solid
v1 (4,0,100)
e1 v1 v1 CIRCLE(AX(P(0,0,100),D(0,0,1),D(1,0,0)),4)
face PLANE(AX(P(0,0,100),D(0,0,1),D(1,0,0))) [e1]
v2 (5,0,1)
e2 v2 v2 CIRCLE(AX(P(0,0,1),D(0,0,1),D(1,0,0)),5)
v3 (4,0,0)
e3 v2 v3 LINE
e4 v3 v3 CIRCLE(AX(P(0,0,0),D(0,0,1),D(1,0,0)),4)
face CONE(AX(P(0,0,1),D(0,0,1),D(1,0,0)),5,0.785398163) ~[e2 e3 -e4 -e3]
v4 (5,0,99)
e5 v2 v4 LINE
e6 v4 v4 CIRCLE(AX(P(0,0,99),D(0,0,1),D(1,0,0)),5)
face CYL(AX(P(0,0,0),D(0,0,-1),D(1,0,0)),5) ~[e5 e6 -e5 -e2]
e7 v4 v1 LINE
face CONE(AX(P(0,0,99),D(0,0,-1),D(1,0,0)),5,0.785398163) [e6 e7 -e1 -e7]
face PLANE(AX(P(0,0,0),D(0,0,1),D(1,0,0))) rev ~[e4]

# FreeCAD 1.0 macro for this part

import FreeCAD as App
import Part
import Sketcher

V = App.Vector


def edges_at(feature, points):
    """Names of the edges that pass closest to the given points."""
    edges = feature.Shape.Edges
    near = lambda p: min(range(len(edges)), key=lambda i: edges[i].distToShape(Part.Vertex(*p))[0])
    return sorted({f"Edge{near(p) + 1}" for p in points})

doc = App.newDocument("Part")
body = doc.addObject("PartDesign::Body", "Body")

sketch1 = body.newObject("Sketcher::SketchObject", "Sketch")
sketch1.AttachmentSupport = (doc.getObject("XY_Plane"), [""])
sketch1.MapMode = "FlatFace"
sketch1.addGeometry(Part.Circle(V(0, 0, 0), V(0, 0, 1), 5), False)
sketch1.addConstraint([
    Sketcher.Constraint("Coincident", 0, 3, -1, 1),
    Sketcher.Constraint("Diameter", 0, 10.0),
])
pad1 = body.newObject("PartDesign::Pad", "Pad")
pad1.Profile = sketch1
pad1.Length = 100
doc.recompute()

chamfer = body.newObject("PartDesign::Chamfer", "Chamfer")
chamfer.Base = (pad1, edges_at(pad1, [(-4.662, -1.808, 100), (-4.662, -1.808, 0)]))
chamfer.Size = 1

doc.recompute()
